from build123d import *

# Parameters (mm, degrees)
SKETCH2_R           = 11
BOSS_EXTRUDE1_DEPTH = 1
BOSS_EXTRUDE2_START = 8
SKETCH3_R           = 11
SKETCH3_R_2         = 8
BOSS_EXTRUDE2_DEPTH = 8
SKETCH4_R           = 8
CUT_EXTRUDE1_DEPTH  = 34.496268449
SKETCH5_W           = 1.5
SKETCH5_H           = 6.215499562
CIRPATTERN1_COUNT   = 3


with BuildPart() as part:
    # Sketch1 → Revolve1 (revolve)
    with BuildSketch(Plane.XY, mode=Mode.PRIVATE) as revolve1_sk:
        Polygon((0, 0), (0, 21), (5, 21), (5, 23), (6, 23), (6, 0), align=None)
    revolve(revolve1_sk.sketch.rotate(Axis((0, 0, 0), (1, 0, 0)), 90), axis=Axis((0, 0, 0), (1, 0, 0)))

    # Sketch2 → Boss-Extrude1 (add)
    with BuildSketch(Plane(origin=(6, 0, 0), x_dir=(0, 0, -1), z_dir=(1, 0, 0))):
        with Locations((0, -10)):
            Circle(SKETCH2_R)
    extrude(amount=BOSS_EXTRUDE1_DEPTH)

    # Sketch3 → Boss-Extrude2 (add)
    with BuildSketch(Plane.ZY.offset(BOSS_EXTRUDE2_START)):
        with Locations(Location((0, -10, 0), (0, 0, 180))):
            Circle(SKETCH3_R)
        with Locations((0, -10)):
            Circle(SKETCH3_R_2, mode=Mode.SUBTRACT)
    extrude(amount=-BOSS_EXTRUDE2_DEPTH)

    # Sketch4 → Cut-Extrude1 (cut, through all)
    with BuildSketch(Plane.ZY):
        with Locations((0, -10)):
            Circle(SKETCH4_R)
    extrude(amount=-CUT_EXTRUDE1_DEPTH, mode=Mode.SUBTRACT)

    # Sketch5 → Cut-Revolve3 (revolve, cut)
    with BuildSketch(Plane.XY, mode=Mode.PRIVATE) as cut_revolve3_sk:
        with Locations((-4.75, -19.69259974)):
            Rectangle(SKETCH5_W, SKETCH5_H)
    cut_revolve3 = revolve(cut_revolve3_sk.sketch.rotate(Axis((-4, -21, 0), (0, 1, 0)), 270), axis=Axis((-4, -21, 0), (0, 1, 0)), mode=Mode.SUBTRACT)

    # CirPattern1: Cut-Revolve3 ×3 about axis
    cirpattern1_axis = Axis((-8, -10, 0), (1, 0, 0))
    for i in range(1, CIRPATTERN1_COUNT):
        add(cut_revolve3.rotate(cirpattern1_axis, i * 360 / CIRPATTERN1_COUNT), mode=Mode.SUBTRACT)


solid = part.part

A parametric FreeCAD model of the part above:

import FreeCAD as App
import Part
import Sketcher

doc = App.newDocument("Part")
body = doc.addObject("PartDesign::Body", "Body")

# Sketch on XY plane
sketch1 = body.newObject("Sketcher::SketchObject", "Sketch")
sketch1.AttachmentSupport = (doc.getObject("XY_Plane"), [""])
sketch1.MapMode = "FlatFace"
sketch1.addGeometry(Part.LineSegment(App.Vector(0, 21, 0), App.Vector(0, 0, 0)), False)
sketch1.addGeometry(Part.LineSegment(App.Vector(0, 0, 0), App.Vector(6, 0, 0)), False)
sketch1.addGeometry(Part.LineSegment(App.Vector(6, 0, 0), App.Vector(6, 23, 0)), False)
sketch1.addGeometry(Part.LineSegment(App.Vector(6, 23, 0), App.Vector(5, 23, 0)), False)
sketch1.addGeometry(Part.LineSegment(App.Vector(5, 23, 0), App.Vector(5, 21, 0)), False)
sketch1.addGeometry(Part.LineSegment(App.Vector(5, 21, 0), App.Vector(0, 21, 0)), False)
sketch1.addConstraint(Sketcher.Constraint("Coincident", 0, 2, 1, 1))
sketch1.addConstraint(Sketcher.Constraint("Coincident", 1, 2, 2, 1))
sketch1.addConstraint(Sketcher.Constraint("Coincident", 2, 2, 3, 1))
sketch1.addConstraint(Sketcher.Constraint("Coincident", 3, 2, 4, 1))
sketch1.addConstraint(Sketcher.Constraint("Coincident", 4, 2, 5, 1))
sketch1.addConstraint(Sketcher.Constraint("Coincident", 5, 2, 0, 1))
sketch1.addConstraint(Sketcher.Constraint("Vertical", 0))
sketch1.addConstraint(Sketcher.Constraint("Horizontal", 1))
sketch1.addConstraint(Sketcher.Constraint("Vertical", 2))
sketch1.addConstraint(Sketcher.Constraint("Horizontal", 3))
sketch1.addConstraint(Sketcher.Constraint("Vertical", 4))
sketch1.addConstraint(Sketcher.Constraint("Horizontal", 5))
sketch1.addConstraint(Sketcher.Constraint("Coincident", 0, 2, -1, 1))
sketch1.addConstraint(Sketcher.Constraint("DistanceX", 1, 1, 1, 2, 6.0))
sketch1.addConstraint(Sketcher.Constraint("DistanceX", 3, 2, 3, 1, 1.0))
sketch1.addConstraint(Sketcher.Constraint("DistanceY", 0, 2, 0, 1, 21.0))
sketch1.addConstraint(Sketcher.Constraint("DistanceY", 2, 1, 2, 2, 23.0))
revolution = body.newObject("PartDesign::Revolution", "Revolution")
revolution.Profile = sketch1
revolution.ReferenceAxis = (sketch1, ["H_Axis"])
revolution.Angle = 360

# Sketch on YZ plane
sketch2 = body.newObject("Sketcher::SketchObject", "Sketch001")
sketch2.AttachmentSupport = (doc.getObject("YZ_Plane"), [""])
sketch2.MapMode = "FlatFace"
sketch2.AttachmentOffset = App.Placement(App.Vector(0, 0, 6), App.Rotation())
sketch2.addGeometry(Part.Circle(App.Vector(-10, 0, 0), App.Vector(0, 0, 1), 11), False)
sketch2.addConstraint(Sketcher.Constraint("PointOnObject", 0, 3, -1))
sketch2.addConstraint(Sketcher.Constraint("Diameter", 0, 22.0))
sketch2.addConstraint(Sketcher.Constraint("DistanceX", 0, 3, -1, 1, 10.0))
pad1 = body.newObject("PartDesign::Pad", "Pad")
pad1.Profile = sketch2
pad1.Length = 1

# Sketch on YZ plane
sketch3 = body.newObject("Sketcher::SketchObject", "Sketch002")
sketch3.AttachmentSupport = (doc.getObject("YZ_Plane"), [""])
sketch3.MapMode = "FlatFace"
sketch3.AttachmentOffset = App.Placement(App.Vector(0, 0, -8), App.Rotation())
sketch3.addGeometry(Part.Circle(App.Vector(-10, 0, 0), App.Vector(0, 0, 1), 11), False)
sketch3.addGeometry(Part.Circle(App.Vector(-10, 0, 0), App.Vector(0, 0, 1), 8), False)
sketch3.addConstraint(Sketcher.Constraint("Coincident", 1, 3, 0, 3))
sketch3.addConstraint(Sketcher.Constraint("PointOnObject", 0, 3, -1))
sketch3.addConstraint(Sketcher.Constraint("Diameter", 0, 22.0))
sketch3.addConstraint(Sketcher.Constraint("Diameter", 1, 16.0))
sketch3.addConstraint(Sketcher.Constraint("DistanceX", 0, 3, -1, 1, 10.0))
pad2 = body.newObject("PartDesign::Pad", "Pad001")
pad2.Profile = sketch3
pad2.Length = 8

# Sketch on YZ plane
sketch4 = body.newObject("Sketcher::SketchObject", "Sketch003")
sketch4.AttachmentSupport = (doc.getObject("YZ_Plane"), [""])
sketch4.MapMode = "FlatFace"
sketch4.addGeometry(Part.Circle(App.Vector(-10, 0, 0), App.Vector(0, 0, 1), 8), False)
sketch4.addConstraint(Sketcher.Constraint("PointOnObject", 0, 3, -1))
sketch4.addConstraint(Sketcher.Constraint("Diameter", 0, 16.0))
sketch4.addConstraint(Sketcher.Constraint("DistanceX", 0, 3, -1, 1, 10.0))
pocket1 = body.newObject("PartDesign::Pocket", "Pocket")
pocket1.Profile = sketch4
pocket1.Type = "ThroughAll"
pocket1.Reversed = True

# Sketch on XY plane
sketch5 = body.newObject("Sketcher::SketchObject", "Sketch004")
sketch5.AttachmentSupport = (doc.getObject("XY_Plane"), [""])
sketch5.MapMode = "FlatFace"
sketch5.addGeometry(Part.LineSegment(App.Vector(-5.5, -16.6, 0), App.Vector(-5.5, -22.8, 0)), False)
sketch5.addGeometry(Part.LineSegment(App.Vector(-5.5, -22.8, 0), App.Vector(-4, -22.8, 0)), False)
sketch5.addGeometry(Part.LineSegment(App.Vector(-4, -22.8, 0), App.Vector(-4, -16.6, 0)), False)
sketch5.addGeometry(Part.LineSegment(App.Vector(-4, -16.6, 0), App.Vector(-5.5, -16.6, 0)), False)
sketch5.addGeometry(Part.LineSegment(App.Vector(-4, -22.8, 0), App.Vector(-4, -16.6, 0)), True)  # axis
sketch5.addConstraint(Sketcher.Constraint("Coincident", 0, 2, 1, 1))
sketch5.addConstraint(Sketcher.Constraint("Coincident", 1, 2, 2, 1))
sketch5.addConstraint(Sketcher.Constraint("Coincident", 2, 2, 3, 1))
sketch5.addConstraint(Sketcher.Constraint("Coincident", 3, 2, 0, 1))
sketch5.addConstraint(Sketcher.Constraint("Vertical", 0))
sketch5.addConstraint(Sketcher.Constraint("Horizontal", 1))
sketch5.addConstraint(Sketcher.Constraint("Vertical", 2))
sketch5.addConstraint(Sketcher.Constraint("Horizontal", 3))
sketch5.addConstraint(Sketcher.Constraint("Vertical", 4))
sketch5.addConstraint(Sketcher.Constraint("Coincident", 4, 1, 1, 2))
sketch5.addConstraint(Sketcher.Constraint("Horizontal", 3, 2, 4, 2))
sketch5.addConstraint(Sketcher.Constraint("DistanceX", 1, 1, 1, 2, 1.5))
sketch5.addConstraint(Sketcher.Constraint("DistanceX", 1, 2, -1, 1, 4.0))
sketch5.addConstraint(Sketcher.Constraint("DistanceY", 0, 2, 0, 1, 6.2155))
sketch5.addConstraint(Sketcher.Constraint("DistanceY", 0, 2, -1, 1, 22.80035))
groove = body.newObject("PartDesign::Groove", "Groove")
groove.Profile = sketch5
groove.ReferenceAxis = (sketch5, ["Axis0"])
groove.Angle = 360
doc.recompute()

datumline = body.newObject("PartDesign::Line", "DatumLine")
datumline.Placement = App.Placement(App.Vector(0, -10, 0), App.Rotation(App.Vector(0, 0, 1), App.Vector(1, 0, 0)))
polarpattern = body.newObject("PartDesign::PolarPattern", "PolarPattern")
polarpattern.Originals = [groove]
polarpattern.Axis = (datumline, [""])
polarpattern.Angle = 360
polarpattern.Occurrences = 3
body.Tip = polarpattern

doc.recompute()
